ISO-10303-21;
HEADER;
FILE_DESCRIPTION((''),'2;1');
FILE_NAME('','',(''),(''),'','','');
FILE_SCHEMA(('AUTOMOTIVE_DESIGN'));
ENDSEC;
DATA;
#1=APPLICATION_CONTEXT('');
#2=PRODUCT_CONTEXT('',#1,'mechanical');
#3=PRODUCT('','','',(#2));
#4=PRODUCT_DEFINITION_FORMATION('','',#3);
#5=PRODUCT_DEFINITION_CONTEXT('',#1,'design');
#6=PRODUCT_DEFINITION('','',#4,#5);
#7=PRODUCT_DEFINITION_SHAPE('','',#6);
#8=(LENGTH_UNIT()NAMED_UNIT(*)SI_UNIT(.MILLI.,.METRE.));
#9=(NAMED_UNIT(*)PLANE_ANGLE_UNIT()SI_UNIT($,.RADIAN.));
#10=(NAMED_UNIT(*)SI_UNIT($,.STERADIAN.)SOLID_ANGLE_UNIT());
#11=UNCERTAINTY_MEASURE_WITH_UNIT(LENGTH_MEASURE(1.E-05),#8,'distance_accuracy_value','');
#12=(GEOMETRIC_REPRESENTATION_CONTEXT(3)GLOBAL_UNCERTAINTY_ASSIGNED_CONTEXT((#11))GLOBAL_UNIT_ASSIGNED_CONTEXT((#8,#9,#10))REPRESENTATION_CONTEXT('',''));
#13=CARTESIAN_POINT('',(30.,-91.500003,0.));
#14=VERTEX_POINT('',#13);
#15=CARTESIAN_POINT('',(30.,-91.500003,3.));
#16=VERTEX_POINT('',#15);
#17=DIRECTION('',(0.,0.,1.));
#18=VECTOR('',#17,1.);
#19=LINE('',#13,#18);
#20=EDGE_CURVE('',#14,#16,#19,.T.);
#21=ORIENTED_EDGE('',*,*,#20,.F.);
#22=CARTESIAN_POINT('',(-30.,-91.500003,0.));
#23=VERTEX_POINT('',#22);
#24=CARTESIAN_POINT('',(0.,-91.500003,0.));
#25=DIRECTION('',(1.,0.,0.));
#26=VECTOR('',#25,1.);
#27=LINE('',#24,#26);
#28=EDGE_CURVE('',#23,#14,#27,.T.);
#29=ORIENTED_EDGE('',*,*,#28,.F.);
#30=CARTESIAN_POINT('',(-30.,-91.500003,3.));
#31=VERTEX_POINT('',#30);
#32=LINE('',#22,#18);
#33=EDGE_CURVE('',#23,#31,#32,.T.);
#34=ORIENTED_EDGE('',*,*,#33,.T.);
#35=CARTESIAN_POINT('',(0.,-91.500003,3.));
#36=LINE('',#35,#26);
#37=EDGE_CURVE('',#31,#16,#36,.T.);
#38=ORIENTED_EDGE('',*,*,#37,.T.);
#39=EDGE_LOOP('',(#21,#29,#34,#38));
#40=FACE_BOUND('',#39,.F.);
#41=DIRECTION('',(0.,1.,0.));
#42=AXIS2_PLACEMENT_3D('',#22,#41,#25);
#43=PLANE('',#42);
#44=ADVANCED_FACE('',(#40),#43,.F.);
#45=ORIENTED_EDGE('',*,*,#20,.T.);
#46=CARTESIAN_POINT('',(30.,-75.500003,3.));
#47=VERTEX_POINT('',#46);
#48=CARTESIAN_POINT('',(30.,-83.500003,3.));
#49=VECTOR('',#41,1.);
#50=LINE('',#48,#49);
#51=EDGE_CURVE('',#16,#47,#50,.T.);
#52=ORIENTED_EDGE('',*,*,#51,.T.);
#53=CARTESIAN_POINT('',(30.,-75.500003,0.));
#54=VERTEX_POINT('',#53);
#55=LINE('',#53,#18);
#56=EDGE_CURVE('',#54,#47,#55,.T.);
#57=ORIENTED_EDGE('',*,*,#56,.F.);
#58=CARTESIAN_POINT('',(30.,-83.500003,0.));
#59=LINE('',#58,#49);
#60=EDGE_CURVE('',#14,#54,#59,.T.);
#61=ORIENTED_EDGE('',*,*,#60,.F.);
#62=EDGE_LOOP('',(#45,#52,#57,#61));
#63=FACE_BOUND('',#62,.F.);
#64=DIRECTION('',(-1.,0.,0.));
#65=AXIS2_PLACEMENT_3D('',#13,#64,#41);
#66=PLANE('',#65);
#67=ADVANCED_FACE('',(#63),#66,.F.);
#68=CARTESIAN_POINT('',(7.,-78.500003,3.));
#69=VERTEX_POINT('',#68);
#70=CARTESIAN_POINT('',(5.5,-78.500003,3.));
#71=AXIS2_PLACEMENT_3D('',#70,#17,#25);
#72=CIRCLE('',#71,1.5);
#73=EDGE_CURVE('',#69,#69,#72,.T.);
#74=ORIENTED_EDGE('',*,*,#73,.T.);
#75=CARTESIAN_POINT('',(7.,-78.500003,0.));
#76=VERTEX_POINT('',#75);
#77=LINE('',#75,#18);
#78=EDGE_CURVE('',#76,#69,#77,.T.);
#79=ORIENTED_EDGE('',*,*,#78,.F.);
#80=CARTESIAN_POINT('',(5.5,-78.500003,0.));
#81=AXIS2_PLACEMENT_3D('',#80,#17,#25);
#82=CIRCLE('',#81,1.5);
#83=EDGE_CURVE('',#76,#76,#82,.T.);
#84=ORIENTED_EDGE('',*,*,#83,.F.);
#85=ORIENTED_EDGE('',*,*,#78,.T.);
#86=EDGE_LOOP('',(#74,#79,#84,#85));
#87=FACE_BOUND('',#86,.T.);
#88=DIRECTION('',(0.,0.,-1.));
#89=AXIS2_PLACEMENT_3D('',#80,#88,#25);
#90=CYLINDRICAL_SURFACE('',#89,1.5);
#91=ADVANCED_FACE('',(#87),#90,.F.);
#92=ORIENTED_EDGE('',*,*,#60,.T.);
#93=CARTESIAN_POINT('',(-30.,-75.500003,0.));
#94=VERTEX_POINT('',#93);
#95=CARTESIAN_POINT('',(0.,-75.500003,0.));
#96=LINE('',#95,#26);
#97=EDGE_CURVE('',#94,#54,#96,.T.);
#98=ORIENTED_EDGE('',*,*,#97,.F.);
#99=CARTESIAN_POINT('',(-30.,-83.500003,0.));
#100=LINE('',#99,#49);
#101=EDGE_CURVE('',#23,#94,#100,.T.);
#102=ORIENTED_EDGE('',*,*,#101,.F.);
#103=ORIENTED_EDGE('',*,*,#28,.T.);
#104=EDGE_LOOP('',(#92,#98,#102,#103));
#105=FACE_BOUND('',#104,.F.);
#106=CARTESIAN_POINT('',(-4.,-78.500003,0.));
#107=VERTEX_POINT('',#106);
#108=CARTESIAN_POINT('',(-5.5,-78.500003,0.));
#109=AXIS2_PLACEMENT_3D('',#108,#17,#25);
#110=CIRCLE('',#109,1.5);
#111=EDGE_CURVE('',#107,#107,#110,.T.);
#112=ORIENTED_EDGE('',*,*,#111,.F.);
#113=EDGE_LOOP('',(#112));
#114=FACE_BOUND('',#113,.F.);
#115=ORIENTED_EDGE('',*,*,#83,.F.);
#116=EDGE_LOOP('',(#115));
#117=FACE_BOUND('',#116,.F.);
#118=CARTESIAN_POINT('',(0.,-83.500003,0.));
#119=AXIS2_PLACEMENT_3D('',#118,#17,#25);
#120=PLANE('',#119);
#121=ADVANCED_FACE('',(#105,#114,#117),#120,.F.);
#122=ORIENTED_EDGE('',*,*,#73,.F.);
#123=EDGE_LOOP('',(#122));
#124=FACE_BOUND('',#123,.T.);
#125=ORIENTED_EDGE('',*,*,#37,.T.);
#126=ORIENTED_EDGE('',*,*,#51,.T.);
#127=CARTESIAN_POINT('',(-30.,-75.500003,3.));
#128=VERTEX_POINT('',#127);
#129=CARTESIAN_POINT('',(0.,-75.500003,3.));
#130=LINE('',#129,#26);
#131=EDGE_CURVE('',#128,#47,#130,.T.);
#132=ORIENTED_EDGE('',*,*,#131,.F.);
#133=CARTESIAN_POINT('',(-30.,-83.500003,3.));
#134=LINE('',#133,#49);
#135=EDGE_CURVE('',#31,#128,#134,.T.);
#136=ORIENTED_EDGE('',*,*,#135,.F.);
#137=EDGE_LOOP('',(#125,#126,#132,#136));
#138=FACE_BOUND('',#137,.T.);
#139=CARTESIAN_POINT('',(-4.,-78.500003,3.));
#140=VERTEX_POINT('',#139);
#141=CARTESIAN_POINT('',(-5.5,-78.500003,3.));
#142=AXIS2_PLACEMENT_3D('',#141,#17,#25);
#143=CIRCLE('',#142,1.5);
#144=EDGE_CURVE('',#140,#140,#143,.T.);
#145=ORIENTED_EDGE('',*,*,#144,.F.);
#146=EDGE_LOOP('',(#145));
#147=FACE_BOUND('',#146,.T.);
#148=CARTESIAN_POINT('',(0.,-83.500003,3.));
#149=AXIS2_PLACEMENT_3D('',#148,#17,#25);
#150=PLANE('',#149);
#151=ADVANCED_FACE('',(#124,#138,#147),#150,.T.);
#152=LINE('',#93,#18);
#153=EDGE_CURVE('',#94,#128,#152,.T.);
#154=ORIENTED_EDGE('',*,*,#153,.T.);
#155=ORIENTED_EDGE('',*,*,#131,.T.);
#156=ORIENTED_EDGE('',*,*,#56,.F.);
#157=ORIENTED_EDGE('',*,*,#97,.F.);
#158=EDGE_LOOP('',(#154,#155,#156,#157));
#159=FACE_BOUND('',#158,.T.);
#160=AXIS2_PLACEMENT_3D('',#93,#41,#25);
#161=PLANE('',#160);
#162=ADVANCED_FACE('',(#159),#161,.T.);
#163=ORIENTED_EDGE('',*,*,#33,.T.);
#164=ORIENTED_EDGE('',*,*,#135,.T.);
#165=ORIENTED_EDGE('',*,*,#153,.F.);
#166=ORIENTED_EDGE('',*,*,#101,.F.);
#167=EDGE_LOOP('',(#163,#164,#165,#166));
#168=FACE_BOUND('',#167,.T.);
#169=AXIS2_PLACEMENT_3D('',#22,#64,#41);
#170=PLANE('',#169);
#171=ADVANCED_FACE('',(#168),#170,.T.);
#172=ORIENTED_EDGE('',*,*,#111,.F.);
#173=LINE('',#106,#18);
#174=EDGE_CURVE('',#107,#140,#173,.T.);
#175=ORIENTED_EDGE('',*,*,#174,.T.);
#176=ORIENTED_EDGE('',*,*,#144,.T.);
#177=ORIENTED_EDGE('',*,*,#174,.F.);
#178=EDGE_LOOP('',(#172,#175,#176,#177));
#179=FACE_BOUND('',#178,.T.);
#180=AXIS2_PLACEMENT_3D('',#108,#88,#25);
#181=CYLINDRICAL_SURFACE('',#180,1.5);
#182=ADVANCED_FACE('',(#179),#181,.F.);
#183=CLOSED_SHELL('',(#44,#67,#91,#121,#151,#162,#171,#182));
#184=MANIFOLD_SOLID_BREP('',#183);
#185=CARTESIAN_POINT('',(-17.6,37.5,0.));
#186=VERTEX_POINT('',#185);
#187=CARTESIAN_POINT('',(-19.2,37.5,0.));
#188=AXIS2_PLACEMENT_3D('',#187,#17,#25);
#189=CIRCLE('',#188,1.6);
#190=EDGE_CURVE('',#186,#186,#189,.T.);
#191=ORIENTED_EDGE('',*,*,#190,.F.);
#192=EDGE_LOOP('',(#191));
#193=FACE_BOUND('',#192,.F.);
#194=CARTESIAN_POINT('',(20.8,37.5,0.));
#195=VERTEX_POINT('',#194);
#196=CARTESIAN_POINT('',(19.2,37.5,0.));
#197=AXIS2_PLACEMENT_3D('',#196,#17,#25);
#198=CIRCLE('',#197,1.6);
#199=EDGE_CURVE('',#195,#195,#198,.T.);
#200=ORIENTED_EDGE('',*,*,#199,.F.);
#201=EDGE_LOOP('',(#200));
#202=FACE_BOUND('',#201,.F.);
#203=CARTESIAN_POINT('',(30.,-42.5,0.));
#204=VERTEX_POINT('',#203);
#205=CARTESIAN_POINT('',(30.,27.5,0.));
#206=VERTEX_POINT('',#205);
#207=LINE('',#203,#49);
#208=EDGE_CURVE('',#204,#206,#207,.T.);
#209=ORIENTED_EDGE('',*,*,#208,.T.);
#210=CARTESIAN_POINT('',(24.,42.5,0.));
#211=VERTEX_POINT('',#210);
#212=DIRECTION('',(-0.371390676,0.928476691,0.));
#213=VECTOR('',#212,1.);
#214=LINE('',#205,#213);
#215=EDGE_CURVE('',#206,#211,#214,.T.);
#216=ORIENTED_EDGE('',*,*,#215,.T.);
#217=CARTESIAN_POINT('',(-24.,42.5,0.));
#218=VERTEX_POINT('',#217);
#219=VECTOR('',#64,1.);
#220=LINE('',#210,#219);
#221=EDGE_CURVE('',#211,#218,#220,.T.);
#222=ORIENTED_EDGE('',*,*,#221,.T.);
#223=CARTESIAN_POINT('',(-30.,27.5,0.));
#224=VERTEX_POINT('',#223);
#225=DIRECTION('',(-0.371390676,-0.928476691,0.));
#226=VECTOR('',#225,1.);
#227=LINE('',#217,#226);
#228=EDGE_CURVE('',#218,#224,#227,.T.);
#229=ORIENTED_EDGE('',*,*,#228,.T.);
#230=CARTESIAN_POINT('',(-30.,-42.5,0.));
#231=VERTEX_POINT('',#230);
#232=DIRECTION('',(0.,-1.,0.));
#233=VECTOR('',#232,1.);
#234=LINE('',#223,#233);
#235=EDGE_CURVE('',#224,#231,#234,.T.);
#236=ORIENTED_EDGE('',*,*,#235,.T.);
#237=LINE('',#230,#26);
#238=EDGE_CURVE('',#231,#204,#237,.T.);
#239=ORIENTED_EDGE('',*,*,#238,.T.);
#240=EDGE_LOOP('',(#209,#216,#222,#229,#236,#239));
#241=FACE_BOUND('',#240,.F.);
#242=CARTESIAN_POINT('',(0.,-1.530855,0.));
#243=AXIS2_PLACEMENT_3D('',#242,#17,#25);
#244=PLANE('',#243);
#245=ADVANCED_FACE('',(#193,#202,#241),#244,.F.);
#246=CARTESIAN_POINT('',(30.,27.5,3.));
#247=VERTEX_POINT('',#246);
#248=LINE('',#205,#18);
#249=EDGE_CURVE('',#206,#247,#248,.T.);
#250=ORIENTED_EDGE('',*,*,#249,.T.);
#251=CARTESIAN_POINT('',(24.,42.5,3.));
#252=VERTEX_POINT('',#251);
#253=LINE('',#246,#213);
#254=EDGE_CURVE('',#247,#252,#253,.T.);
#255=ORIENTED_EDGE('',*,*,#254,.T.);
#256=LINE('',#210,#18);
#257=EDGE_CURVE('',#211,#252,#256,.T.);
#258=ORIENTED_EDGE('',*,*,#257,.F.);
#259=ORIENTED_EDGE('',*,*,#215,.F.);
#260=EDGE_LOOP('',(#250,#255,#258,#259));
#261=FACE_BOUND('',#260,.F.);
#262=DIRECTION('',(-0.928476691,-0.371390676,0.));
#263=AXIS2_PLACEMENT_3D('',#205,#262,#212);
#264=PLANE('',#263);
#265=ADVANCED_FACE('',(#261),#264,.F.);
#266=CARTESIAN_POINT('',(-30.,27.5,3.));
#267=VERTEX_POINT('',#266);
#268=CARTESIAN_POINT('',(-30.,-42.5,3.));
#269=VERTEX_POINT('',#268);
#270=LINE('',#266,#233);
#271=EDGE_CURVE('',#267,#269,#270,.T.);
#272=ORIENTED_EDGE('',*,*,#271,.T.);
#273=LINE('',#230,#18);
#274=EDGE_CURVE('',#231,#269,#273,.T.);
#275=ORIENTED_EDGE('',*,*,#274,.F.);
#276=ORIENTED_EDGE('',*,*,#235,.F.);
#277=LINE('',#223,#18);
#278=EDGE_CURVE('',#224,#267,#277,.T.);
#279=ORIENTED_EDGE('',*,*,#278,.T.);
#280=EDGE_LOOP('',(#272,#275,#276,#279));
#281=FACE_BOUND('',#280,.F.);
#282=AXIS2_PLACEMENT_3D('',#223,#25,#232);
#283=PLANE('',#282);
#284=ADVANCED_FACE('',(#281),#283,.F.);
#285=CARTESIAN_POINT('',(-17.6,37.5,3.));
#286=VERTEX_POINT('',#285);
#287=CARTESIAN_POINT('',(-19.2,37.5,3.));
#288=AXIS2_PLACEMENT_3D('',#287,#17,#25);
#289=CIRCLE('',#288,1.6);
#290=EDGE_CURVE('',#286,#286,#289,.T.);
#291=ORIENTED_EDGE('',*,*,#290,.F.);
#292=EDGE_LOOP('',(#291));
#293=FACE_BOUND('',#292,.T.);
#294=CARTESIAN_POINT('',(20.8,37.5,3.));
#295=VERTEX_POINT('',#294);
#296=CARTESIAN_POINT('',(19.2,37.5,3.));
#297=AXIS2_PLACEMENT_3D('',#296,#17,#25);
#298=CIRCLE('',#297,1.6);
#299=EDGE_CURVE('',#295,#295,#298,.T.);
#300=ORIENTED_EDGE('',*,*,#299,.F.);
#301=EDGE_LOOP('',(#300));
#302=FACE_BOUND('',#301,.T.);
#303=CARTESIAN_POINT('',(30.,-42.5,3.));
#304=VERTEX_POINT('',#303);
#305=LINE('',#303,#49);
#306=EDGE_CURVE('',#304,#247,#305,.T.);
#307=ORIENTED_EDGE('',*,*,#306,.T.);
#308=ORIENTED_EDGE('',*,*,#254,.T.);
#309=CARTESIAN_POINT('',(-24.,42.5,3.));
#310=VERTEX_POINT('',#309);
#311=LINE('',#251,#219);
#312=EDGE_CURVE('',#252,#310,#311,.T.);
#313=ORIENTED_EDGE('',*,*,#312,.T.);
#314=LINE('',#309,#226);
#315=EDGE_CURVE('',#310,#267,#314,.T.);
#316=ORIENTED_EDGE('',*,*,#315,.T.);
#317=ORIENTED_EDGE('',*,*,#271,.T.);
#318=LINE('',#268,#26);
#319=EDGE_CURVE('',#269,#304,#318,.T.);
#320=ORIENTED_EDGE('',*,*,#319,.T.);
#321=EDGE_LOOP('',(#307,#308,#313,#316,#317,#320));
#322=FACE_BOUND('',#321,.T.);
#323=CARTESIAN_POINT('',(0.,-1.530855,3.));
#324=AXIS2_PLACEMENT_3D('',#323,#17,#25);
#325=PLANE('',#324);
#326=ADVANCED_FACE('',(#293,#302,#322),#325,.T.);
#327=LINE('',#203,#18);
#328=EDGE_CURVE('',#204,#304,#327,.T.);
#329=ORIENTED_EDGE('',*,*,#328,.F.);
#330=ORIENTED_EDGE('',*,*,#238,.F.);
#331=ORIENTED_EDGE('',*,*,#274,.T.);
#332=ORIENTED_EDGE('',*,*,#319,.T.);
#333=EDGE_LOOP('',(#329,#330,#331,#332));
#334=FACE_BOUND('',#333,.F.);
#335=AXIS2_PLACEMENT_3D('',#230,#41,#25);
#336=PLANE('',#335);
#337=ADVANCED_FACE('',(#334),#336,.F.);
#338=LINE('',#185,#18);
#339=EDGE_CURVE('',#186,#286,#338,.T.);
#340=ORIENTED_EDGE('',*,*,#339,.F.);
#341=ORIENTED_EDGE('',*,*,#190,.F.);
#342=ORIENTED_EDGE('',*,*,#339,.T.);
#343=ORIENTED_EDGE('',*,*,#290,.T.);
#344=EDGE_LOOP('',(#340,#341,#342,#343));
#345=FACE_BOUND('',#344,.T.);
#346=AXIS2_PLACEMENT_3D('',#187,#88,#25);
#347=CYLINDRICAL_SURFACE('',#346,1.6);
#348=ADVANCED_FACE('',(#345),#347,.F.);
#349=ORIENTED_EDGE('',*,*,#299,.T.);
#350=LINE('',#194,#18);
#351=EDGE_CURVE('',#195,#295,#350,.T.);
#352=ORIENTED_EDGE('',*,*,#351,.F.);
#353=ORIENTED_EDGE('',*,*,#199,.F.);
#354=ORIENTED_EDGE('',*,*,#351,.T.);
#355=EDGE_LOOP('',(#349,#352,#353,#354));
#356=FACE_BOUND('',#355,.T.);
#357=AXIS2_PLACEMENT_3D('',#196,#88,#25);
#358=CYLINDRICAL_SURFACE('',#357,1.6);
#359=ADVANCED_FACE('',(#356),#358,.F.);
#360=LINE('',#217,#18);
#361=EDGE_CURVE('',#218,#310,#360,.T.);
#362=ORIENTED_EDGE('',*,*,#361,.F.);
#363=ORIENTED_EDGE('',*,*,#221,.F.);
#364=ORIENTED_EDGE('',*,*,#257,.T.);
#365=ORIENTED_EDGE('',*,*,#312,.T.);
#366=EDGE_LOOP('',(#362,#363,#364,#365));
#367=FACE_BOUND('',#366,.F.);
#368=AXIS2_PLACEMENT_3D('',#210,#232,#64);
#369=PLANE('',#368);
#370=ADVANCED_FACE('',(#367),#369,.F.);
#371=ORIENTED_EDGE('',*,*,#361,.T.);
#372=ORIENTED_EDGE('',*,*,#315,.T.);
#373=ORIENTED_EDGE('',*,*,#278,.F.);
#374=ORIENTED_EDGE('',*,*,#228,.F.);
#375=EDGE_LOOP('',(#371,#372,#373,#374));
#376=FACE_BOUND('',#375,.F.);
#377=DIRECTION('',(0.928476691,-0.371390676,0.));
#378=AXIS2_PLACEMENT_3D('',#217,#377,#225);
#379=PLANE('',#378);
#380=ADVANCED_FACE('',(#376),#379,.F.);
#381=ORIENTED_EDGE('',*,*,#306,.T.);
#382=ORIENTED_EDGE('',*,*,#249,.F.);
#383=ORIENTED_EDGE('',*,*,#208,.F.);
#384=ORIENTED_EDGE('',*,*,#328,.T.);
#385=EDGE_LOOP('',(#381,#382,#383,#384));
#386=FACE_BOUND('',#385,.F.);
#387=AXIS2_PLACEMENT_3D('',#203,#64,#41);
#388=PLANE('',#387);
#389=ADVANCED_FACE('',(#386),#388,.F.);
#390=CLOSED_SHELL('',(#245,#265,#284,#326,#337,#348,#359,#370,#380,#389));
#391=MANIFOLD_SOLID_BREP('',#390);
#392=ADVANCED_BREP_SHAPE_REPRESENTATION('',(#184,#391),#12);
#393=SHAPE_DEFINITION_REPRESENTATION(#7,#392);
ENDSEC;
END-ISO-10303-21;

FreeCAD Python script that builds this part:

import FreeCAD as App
import Part
import Sketcher
from FreeCAD import Vector
Q = App.Units.Quantity


def add_polygon(sketch, points):
    """Adds a closed chain of lines whose ends are joined by coincident constraints."""
    first, n = sketch.GeometryCount, len(points)
    for a, b in zip(points, points[1:] + points[:1]):
        sketch.addGeometry(Part.LineSegment(App.Vector(*a, 0), App.Vector(*b, 0)), False)
    for i in range(n):
        sketch.addConstraint(Sketcher.Constraint("Coincident", first + i, 2, first + (i + 1) % n, 1))

doc = App.newDocument("Part")
body = doc.addObject("PartDesign::Body", "Body")

# Sketch on XY plane
sketch1 = body.newObject("Sketcher::SketchObject", "Sketch")
sketch1.AttachmentSupport = (doc.getObject("XY_Plane"), [""])
sketch1.MapMode = "FlatFace"
add_polygon(sketch1, [(24, 42.5), (-24, 42.5), (-30, 27.5), (-30, -42.5), (30, -42.5), (30, 27.5)])  # lines 0-5
sketch1.addGeometry(Part.Circle(Vector(-19.2, 37.5, 0), Vector(0, 0, 1), 1.6), False)  # 6
sketch1.addGeometry(Part.Circle(Vector(19.2, 37.5, 0), Vector(0, 0, 1), 1.6), False)  # 7
sketch1.addConstraint(Sketcher.Constraint("Horizontal", 0))
sketch1.addConstraint(Sketcher.Constraint("Vertical", 2))
sketch1.addConstraint(Sketcher.Constraint("Horizontal", 3))
sketch1.addConstraint(Sketcher.Constraint("Vertical", 4))
sketch1.addConstraint(Sketcher.Constraint("Equal", 6, 7))
sketch1.addConstraint(Sketcher.Constraint("Symmetric", 6, 3, 7, 3, -2))
sketch1.addConstraint(Sketcher.Constraint("Symmetric", 1, 2, 4, 2, -2))
sketch1.addConstraint(Sketcher.Constraint("Equal", 1, 5))
sketch1.addConstraint(Sketcher.Constraint("Diameter", 6, Q("3.2 mm")))
sketch1.addConstraint(Sketcher.Constraint("DistanceX", 0, 2, 0, 1, Q("48 mm")))
sketch1.addConstraint(Sketcher.Constraint("DistanceX", 3, 1, 3, 2, Q("60 mm")))
sketch1.addConstraint(Sketcher.Constraint("DistanceY", 2, 2, 2, 1, Q("70 mm")))
sketch1.addConstraint(Sketcher.Constraint("DistanceY", 6, 3, 0, 2, Q("5 mm")))
sketch1.addConstraint(Sketcher.Constraint("DistanceY", 1, 2, 6, 3, Q("10 mm")))
sketch1.addConstraint(Sketcher.Constraint("DistanceX", 6, 3, -1, 1, Q("19.2 mm")))
sketch1.addConstraint(Sketcher.Constraint("DistanceY", -1, 1, 6, 3, Q("37.5 mm")))
pad1 = body.newObject("PartDesign::Pad", "Pad")
pad1.Profile = sketch1
pad1.Length = 3
body2 = doc.addObject("PartDesign::Body", "Body001")

# Sketch on XY plane
sketch2 = body2.newObject("Sketcher::SketchObject", "Sketch001")
sketch2.AttachmentSupport = (doc.getObject("XY_Plane001"), [""])
sketch2.MapMode = "FlatFace"
add_polygon(sketch2, [(-30, -75.5), (-30, -91.5), (30, -91.5), (30, -75.5)])  # lines 0-3
sketch2.addGeometry(Part.Circle(Vector(-5.5, -78.5, 0), Vector(0, 0, 1), 1.5), False)  # 4
sketch2.addGeometry(Part.Circle(Vector(5.5, -78.5, 0), Vector(0, 0, 1), 1.5), False)  # 5
sketch2.addConstraint(Sketcher.Constraint("Vertical", 0))
sketch2.addConstraint(Sketcher.Constraint("Horizontal", 1))
sketch2.addConstraint(Sketcher.Constraint("Vertical", 2))
sketch2.addConstraint(Sketcher.Constraint("Horizontal", 3))
sketch2.addConstraint(Sketcher.Constraint("Equal", 4, 5))
sketch2.addConstraint(Sketcher.Constraint("Symmetric", 4, 3, 5, 3, -2))
sketch2.addConstraint(Sketcher.Constraint("Diameter", 4, Q("3 mm")))
sketch2.addConstraint(Sketcher.Constraint("DistanceX", 1, 1, 1, 2, Q("60 mm")))
sketch2.addConstraint(Sketcher.Constraint("DistanceY", 0, 2, 0, 1, Q("16 mm")))
sketch2.addConstraint(Sketcher.Constraint("DistanceX", 0, 2, -1, 1, Q("30 mm")))
sketch2.addConstraint(Sketcher.Constraint("DistanceX", 4, 3, 5, 3, Q("11 mm")))
sketch2.addConstraint(Sketcher.Constraint("DistanceY", 0, 2, 4, 3, Q("13 mm")))
sketch2.addConstraint(Sketcher.Constraint("DistanceY", 4, 3, -1, 1, Q("78.500003 mm")))
pad2 = body2.newObject("PartDesign::Pad", "Pad001")
pad2.Profile = sketch2
pad2.Length = 3

doc.recompute()
